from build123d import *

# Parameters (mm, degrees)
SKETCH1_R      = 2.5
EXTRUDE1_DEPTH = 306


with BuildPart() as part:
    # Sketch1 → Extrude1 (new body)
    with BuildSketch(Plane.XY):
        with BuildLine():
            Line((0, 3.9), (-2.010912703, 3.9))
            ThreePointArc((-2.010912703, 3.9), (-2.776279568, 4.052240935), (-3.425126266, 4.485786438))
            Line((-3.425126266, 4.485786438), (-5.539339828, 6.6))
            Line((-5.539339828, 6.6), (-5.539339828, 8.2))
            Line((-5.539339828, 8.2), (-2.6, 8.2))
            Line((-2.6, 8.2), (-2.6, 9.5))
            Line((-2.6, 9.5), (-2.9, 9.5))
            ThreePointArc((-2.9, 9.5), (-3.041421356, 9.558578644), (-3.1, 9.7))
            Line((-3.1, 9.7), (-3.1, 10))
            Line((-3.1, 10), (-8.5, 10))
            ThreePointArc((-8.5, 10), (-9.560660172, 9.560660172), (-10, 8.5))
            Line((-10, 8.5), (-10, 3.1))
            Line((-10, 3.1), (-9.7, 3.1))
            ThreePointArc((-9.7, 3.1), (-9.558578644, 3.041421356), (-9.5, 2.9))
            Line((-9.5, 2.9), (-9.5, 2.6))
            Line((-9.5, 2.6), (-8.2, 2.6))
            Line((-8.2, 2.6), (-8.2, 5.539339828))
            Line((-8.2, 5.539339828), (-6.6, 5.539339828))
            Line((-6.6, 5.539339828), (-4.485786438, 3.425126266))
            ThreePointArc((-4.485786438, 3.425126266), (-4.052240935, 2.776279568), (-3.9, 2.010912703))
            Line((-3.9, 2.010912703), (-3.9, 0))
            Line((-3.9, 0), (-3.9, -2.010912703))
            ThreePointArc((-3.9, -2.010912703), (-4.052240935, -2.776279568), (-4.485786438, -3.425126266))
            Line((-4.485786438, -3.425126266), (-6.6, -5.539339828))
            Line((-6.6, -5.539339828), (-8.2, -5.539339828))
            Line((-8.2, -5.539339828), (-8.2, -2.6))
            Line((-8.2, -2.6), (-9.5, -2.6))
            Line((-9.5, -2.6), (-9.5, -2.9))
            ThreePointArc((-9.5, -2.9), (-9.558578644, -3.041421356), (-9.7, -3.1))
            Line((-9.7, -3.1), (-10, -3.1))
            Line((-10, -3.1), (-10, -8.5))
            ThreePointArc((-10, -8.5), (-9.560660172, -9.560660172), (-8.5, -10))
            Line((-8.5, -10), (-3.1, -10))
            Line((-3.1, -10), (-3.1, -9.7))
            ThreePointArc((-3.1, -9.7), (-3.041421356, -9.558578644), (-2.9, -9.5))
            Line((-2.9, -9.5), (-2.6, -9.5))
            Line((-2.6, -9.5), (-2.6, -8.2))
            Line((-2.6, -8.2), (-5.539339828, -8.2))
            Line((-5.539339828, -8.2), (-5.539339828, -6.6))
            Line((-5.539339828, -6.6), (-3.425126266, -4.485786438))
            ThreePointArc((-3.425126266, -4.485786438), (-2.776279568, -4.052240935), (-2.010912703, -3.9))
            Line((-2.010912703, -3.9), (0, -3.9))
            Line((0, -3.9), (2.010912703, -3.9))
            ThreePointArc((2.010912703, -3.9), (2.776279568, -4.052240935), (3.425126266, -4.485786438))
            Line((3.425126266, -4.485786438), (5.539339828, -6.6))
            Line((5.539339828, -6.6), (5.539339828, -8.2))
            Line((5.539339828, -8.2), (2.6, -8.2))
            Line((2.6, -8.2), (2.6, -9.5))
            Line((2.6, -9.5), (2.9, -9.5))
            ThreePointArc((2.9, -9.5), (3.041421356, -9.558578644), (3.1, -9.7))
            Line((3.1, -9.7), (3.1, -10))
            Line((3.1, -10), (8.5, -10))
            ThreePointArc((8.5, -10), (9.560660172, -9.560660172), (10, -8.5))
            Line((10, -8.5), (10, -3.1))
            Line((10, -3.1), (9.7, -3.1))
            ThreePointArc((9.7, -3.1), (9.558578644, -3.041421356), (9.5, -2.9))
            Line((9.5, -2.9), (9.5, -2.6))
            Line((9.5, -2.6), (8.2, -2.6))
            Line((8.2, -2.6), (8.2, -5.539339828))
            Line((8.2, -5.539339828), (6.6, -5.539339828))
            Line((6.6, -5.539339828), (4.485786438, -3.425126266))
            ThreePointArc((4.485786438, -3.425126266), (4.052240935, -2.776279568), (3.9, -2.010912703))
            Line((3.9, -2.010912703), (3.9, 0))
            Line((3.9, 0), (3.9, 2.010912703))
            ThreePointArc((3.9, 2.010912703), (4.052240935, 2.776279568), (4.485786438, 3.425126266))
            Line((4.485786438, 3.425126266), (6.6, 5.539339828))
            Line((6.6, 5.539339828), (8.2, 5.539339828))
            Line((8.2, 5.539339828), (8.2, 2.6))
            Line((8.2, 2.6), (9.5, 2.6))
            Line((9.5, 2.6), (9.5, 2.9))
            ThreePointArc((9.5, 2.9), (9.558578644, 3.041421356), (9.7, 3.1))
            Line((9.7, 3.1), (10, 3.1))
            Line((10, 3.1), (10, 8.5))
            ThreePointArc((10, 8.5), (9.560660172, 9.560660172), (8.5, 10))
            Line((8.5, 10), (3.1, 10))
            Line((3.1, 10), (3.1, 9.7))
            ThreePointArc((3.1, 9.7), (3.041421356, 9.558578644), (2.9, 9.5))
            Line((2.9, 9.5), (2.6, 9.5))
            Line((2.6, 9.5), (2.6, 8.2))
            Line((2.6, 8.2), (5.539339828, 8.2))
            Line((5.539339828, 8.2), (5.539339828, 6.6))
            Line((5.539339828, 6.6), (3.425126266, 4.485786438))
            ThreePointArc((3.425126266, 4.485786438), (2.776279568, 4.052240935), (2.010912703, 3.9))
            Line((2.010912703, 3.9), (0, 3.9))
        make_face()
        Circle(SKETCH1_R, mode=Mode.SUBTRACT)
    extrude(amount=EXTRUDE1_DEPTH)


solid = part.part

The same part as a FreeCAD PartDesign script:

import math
import FreeCAD as App
import Part
import Sketcher

V = App.Vector

doc = App.newDocument("Part")
body = doc.addObject("PartDesign::Body", "Body")

# Sketch on XY plane
sketch1 = doc.addObject("Sketcher::SketchObject", "Sketch")
body.addObject(sketch1)
sketch1.AttachmentSupport = (doc.XY_Plane, [""])
sketch1.MapMode = "FlatFace"
sketch1.addGeometry([
    Part.ArcOfCircle(Part.Circle(V(-2.010913, 5.9, 0), V(0, 0, 1), 2), math.radians(-135), math.radians(-90)),  # 0
    Part.LineSegment(V(-3.425126, 4.485786, 0), V(-5.53934, 6.6, 0)),  # 1
    Part.LineSegment(V(-5.53934, 6.6, 0), V(-5.53934, 8.2, 0)),  # 2
    Part.LineSegment(V(-5.53934, 8.2, 0), V(-2.6, 8.2, 0)),  # 3
    Part.LineSegment(V(-2.6, 8.2, 0), V(-2.6, 9.5, 0)),  # 4
    Part.LineSegment(V(-2.6, 9.5, 0), V(-2.9, 9.5, 0)),  # 5
    Part.ArcOfCircle(Part.Circle(V(-2.9, 9.7, 0), V(0, 0, 1), 0.2), math.radians(-180), math.radians(-90)),  # 6
    Part.LineSegment(V(-3.1, 9.7, 0), V(-3.1, 10, 0)),  # 7
    Part.LineSegment(V(-3.1, 10, 0), V(-8.5, 10, 0)),  # 8
    Part.ArcOfCircle(Part.Circle(V(-8.5, 8.5, 0), V(0, 0, 1), 1.5), math.radians(90), math.radians(180)),  # 9
    Part.LineSegment(V(-10, 8.5, 0), V(-10, 3.1, 0)),  # 10
    Part.LineSegment(V(-10, 3.1, 0), V(-9.7, 3.1, 0)),  # 11
    Part.ArcOfCircle(Part.Circle(V(-9.7, 2.9, 0), V(0, 0, 1), 0.2), math.radians(0), math.radians(90)),  # 12
    Part.LineSegment(V(-9.5, 2.9, 0), V(-9.5, 2.6, 0)),  # 13
    Part.LineSegment(V(-9.5, 2.6, 0), V(-8.2, 2.6, 0)),  # 14
    Part.LineSegment(V(-8.2, 2.6, 0), V(-8.2, 5.53934, 0)),  # 15
    Part.LineSegment(V(-8.2, 5.53934, 0), V(-6.6, 5.53934, 0)),  # 16
    Part.LineSegment(V(-6.6, 5.53934, 0), V(-4.485786, 3.425126, 0)),  # 17
    Part.ArcOfCircle(Part.Circle(V(-5.9, 2.010913, 0), V(0, 0, 1), 2), math.radians(0), math.radians(45)),  # 18
    Part.LineSegment(V(-3.9, 2.010913, 0), V(-3.9, -2.010913, 0)),  # 19
    Part.ArcOfCircle(Part.Circle(V(-5.9, -2.010913, 0), V(0, 0, 1), 2), math.radians(-45), math.radians(0)),  # 20
    Part.LineSegment(V(-4.485786, -3.425126, 0), V(-6.6, -5.53934, 0)),  # 21
    Part.LineSegment(V(-6.6, -5.53934, 0), V(-8.2, -5.53934, 0)),  # 22
    Part.LineSegment(V(-8.2, -5.53934, 0), V(-8.2, -2.6, 0)),  # 23
    Part.LineSegment(V(-8.2, -2.6, 0), V(-9.5, -2.6, 0)),  # 24
    Part.LineSegment(V(-9.5, -2.6, 0), V(-9.5, -2.9, 0)),  # 25
    Part.ArcOfCircle(Part.Circle(V(-9.7, -2.9, 0), V(0, 0, 1), 0.2), math.radians(-90), math.radians(0)),  # 26
    Part.LineSegment(V(-9.7, -3.1, 0), V(-10, -3.1, 0)),  # 27
    Part.LineSegment(V(-10, -3.1, 0), V(-10, -8.5, 0)),  # 28
    Part.ArcOfCircle(Part.Circle(V(-8.5, -8.5, 0), V(0, 0, 1), 1.5), math.radians(180), math.radians(270)),  # 29
    Part.LineSegment(V(-8.5, -10, 0), V(-3.1, -10, 0)),  # 30
    Part.LineSegment(V(-3.1, -10, 0), V(-3.1, -9.7, 0)),  # 31
    Part.ArcOfCircle(Part.Circle(V(-2.9, -9.7, 0), V(0, 0, 1), 0.2), math.radians(90), math.radians(180)),  # 32
    Part.LineSegment(V(-2.9, -9.5, 0), V(-2.6, -9.5, 0)),  # 33
    Part.LineSegment(V(-2.6, -9.5, 0), V(-2.6, -8.2, 0)),  # 34
    Part.LineSegment(V(-2.6, -8.2, 0), V(-5.53934, -8.2, 0)),  # 35
    Part.LineSegment(V(-5.53934, -8.2, 0), V(-5.53934, -6.6, 0)),  # 36
    Part.LineSegment(V(-5.53934, -6.6, 0), V(-3.425126, -4.485786, 0)),  # 37
    Part.ArcOfCircle(Part.Circle(V(-2.010913, -5.9, 0), V(0, 0, 1), 2), math.radians(90), math.radians(135)),  # 38
    Part.LineSegment(V(-2.010913, -3.9, 0), V(2.010913, -3.9, 0)),  # 39
    Part.ArcOfCircle(Part.Circle(V(2.010913, -5.9, 0), V(0, 0, 1), 2), math.radians(45), math.radians(90)),  # 40
    Part.LineSegment(V(3.425126, -4.485786, 0), V(5.53934, -6.6, 0)),  # 41
    Part.LineSegment(V(5.53934, -6.6, 0), V(5.53934, -8.2, 0)),  # 42
    Part.LineSegment(V(5.53934, -8.2, 0), V(2.6, -8.2, 0)),  # 43
    Part.LineSegment(V(2.6, -8.2, 0), V(2.6, -9.5, 0)),  # 44
    Part.LineSegment(V(2.6, -9.5, 0), V(2.9, -9.5, 0)),  # 45
    Part.ArcOfCircle(Part.Circle(V(2.9, -9.7, 0), V(0, 0, 1), 0.2), math.radians(0), math.radians(90)),  # 46
    Part.LineSegment(V(3.1, -9.7, 0), V(3.1, -10, 0)),  # 47
    Part.LineSegment(V(3.1, -10, 0), V(8.5, -10, 0)),  # 48
    Part.ArcOfCircle(Part.Circle(V(8.5, -8.5, 0), V(0, 0, 1), 1.5), math.radians(-90), math.radians(0)),  # 49
    Part.LineSegment(V(10, -8.5, 0), V(10, -3.1, 0)),  # 50
    Part.LineSegment(V(10, -3.1, 0), V(9.7, -3.1, 0)),  # 51
    Part.ArcOfCircle(Part.Circle(V(9.7, -2.9, 0), V(0, 0, 1), 0.2), math.radians(-180), math.radians(-90)),  # 52
    Part.LineSegment(V(9.5, -2.9, 0), V(9.5, -2.6, 0)),  # 53
    Part.LineSegment(V(9.5, -2.6, 0), V(8.2, -2.6, 0)),  # 54
    Part.LineSegment(V(8.2, -2.6, 0), V(8.2, -5.53934, 0)),  # 55
    Part.LineSegment(V(8.2, -5.53934, 0), V(6.6, -5.53934, 0)),  # 56
    Part.LineSegment(V(6.6, -5.53934, 0), V(4.485786, -3.425126, 0)),  # 57
    Part.ArcOfCircle(Part.Circle(V(5.9, -2.010913, 0), V(0, 0, 1), 2), math.radians(180), math.radians(225)),  # 58
    Part.LineSegment(V(3.9, -2.010913, 0), V(3.9, 2.010913, 0)),  # 59
    Part.ArcOfCircle(Part.Circle(V(5.9, 2.010913, 0), V(0, 0, 1), 2), math.radians(135), math.radians(180)),  # 60
    Part.LineSegment(V(4.485786, 3.425126, 0), V(6.6, 5.53934, 0)),  # 61
    Part.LineSegment(V(6.6, 5.53934, 0), V(8.2, 5.53934, 0)),  # 62
    Part.LineSegment(V(8.2, 5.53934, 0), V(8.2, 2.6, 0)),  # 63
    Part.LineSegment(V(8.2, 2.6, 0), V(9.5, 2.6, 0)),  # 64
    Part.LineSegment(V(9.5, 2.6, 0), V(9.5, 2.9, 0)),  # 65
    Part.ArcOfCircle(Part.Circle(V(9.7, 2.9, 0), V(0, 0, 1), 0.2), math.radians(90), math.radians(180)),  # 66
    Part.LineSegment(V(9.7, 3.1, 0), V(10, 3.1, 0)),  # 67
    Part.LineSegment(V(10, 3.1, 0), V(10, 8.5, 0)),  # 68
    Part.ArcOfCircle(Part.Circle(V(8.5, 8.5, 0), V(0, 0, 1), 1.5), math.radians(0), math.radians(90)),  # 69
    Part.LineSegment(V(8.5, 10, 0), V(3.1, 10, 0)),  # 70
    Part.LineSegment(V(3.1, 10, 0), V(3.1, 9.7, 0)),  # 71
    Part.ArcOfCircle(Part.Circle(V(2.9, 9.7, 0), V(0, 0, 1), 0.2), math.radians(-90), math.radians(0)),  # 72
    Part.LineSegment(V(2.9, 9.5, 0), V(2.6, 9.5, 0)),  # 73
    Part.LineSegment(V(2.6, 9.5, 0), V(2.6, 8.2, 0)),  # 74
    Part.LineSegment(V(2.6, 8.2, 0), V(5.53934, 8.2, 0)),  # 75
    Part.LineSegment(V(5.53934, 8.2, 0), V(5.53934, 6.6, 0)),  # 76
    Part.LineSegment(V(5.53934, 6.6, 0), V(3.425126, 4.485786, 0)),  # 77
    Part.ArcOfCircle(Part.Circle(V(2.010913, 5.9, 0), V(0, 0, 1), 2), math.radians(-90), math.radians(-45)),  # 78
    Part.LineSegment(V(2.010913, 3.9, 0), V(-2.010913, 3.9, 0)),  # 79
    Part.Circle(V(0, 0, 0), V(0, 0, 1), 2.5),  # 80
], False)
sketch1.addConstraint([
    Sketcher.Constraint("Tangent", 0, 1, 1, 1),
    Sketcher.Constraint("Coincident", 1, 2, 2, 1),
    Sketcher.Constraint("Coincident", 2, 2, 3, 1),
    Sketcher.Constraint("Coincident", 3, 2, 4, 1),
    Sketcher.Constraint("Coincident", 4, 2, 5, 1),
    Sketcher.Constraint("Tangent", 5, 2, 6, 2),
    Sketcher.Constraint("Tangent", 6, 1, 7, 1),
    Sketcher.Constraint("Coincident", 7, 2, 8, 1),
    Sketcher.Constraint("Tangent", 8, 2, 9, 1),
    Sketcher.Constraint("Tangent", 9, 2, 10, 1),
    Sketcher.Constraint("Coincident", 10, 2, 11, 1),
    Sketcher.Constraint("Tangent", 11, 2, 12, 2),
    Sketcher.Constraint("Tangent", 12, 1, 13, 1),
    Sketcher.Constraint("Coincident", 13, 2, 14, 1),
    Sketcher.Constraint("Coincident", 14, 2, 15, 1),
    Sketcher.Constraint("Coincident", 15, 2, 16, 1),
    Sketcher.Constraint("Coincident", 16, 2, 17, 1),
    Sketcher.Constraint("Tangent", 17, 2, 18, 2),
    Sketcher.Constraint("Tangent", 18, 1, 19, 1),
    Sketcher.Constraint("Tangent", 19, 2, 20, 2),
    Sketcher.Constraint("Tangent", 20, 1, 21, 1),
    Sketcher.Constraint("Coincident", 21, 2, 22, 1),
    Sketcher.Constraint("Coincident", 22, 2, 23, 1),
    Sketcher.Constraint("Coincident", 23, 2, 24, 1),
    Sketcher.Constraint("Coincident", 24, 2, 25, 1),
    Sketcher.Constraint("Tangent", 25, 2, 26, 2),
    Sketcher.Constraint("Tangent", 26, 1, 27, 1),
    Sketcher.Constraint("Coincident", 27, 2, 28, 1),
    Sketcher.Constraint("Tangent", 28, 2, 29, 1),
    Sketcher.Constraint("Tangent", 29, 2, 30, 1),
    Sketcher.Constraint("Coincident", 30, 2, 31, 1),
    Sketcher.Constraint("Tangent", 31, 2, 32, 2),
    Sketcher.Constraint("Tangent", 32, 1, 33, 1),
    Sketcher.Constraint("Coincident", 33, 2, 34, 1),
    Sketcher.Constraint("Coincident", 34, 2, 35, 1),
    Sketcher.Constraint("Coincident", 35, 2, 36, 1),
    Sketcher.Constraint("Coincident", 36, 2, 37, 1),
    Sketcher.Constraint("Tangent", 37, 2, 38, 2),
    Sketcher.Constraint("Tangent", 38, 1, 39, 1),
    Sketcher.Constraint("Tangent", 39, 2, 40, 2),
    Sketcher.Constraint("Tangent", 40, 1, 41, 1),
    Sketcher.Constraint("Coincident", 41, 2, 42, 1),
    Sketcher.Constraint("Coincident", 42, 2, 43, 1),
    Sketcher.Constraint("Coincident", 43, 2, 44, 1),
    Sketcher.Constraint("Coincident", 44, 2, 45, 1),
    Sketcher.Constraint("Tangent", 45, 2, 46, 2),
    Sketcher.Constraint("Tangent", 46, 1, 47, 1),
    Sketcher.Constraint("Coincident", 47, 2, 48, 1),
    Sketcher.Constraint("Tangent", 48, 2, 49, 1),
    Sketcher.Constraint("Tangent", 49, 2, 50, 1),
    Sketcher.Constraint("Coincident", 50, 2, 51, 1),
    Sketcher.Constraint("Tangent", 51, 2, 52, 2),
    Sketcher.Constraint("Tangent", 52, 1, 53, 1),
    Sketcher.Constraint("Coincident", 53, 2, 54, 1),
    Sketcher.Constraint("Coincident", 54, 2, 55, 1),
    Sketcher.Constraint("Coincident", 55, 2, 56, 1),
    Sketcher.Constraint("Coincident", 56, 2, 57, 1),
    Sketcher.Constraint("Tangent", 57, 2, 58, 2),
    Sketcher.Constraint("Tangent", 58, 1, 59, 1),
    Sketcher.Constraint("Tangent", 59, 2, 60, 2),
    Sketcher.Constraint("Tangent", 60, 1, 61, 1),
    Sketcher.Constraint("Coincident", 61, 2, 62, 1),
    Sketcher.Constraint("Coincident", 62, 2, 63, 1),
    Sketcher.Constraint("Coincident", 63, 2, 64, 1),
    Sketcher.Constraint("Coincident", 64, 2, 65, 1),
    Sketcher.Constraint("Tangent", 65, 2, 66, 2),
    Sketcher.Constraint("Tangent", 66, 1, 67, 1),
    Sketcher.Constraint("Coincident", 67, 2, 68, 1),
    Sketcher.Constraint("Tangent", 68, 2, 69, 1),
    Sketcher.Constraint("Tangent", 69, 2, 70, 1),
    Sketcher.Constraint("Coincident", 70, 2, 71, 1),
    Sketcher.Constraint("Tangent", 71, 2, 72, 2),
    Sketcher.Constraint("Tangent", 72, 1, 73, 1),
    Sketcher.Constraint("Coincident", 73, 2, 74, 1),
    Sketcher.Constraint("Coincident", 74, 2, 75, 1),
    Sketcher.Constraint("Coincident", 75, 2, 76, 1),
    Sketcher.Constraint("Coincident", 76, 2, 77, 1),
    Sketcher.Constraint("Tangent", 77, 2, 78, 2),
    Sketcher.Constraint("Tangent", 78, 1, 79, 1),
    Sketcher.Constraint("Tangent", 79, 2, 0, 2),
    Sketcher.Constraint("Vertical", 2),
    Sketcher.Constraint("Horizontal", 3),
    Sketcher.Constraint("Vertical", 4),
    Sketcher.Constraint("Horizontal", 5),
    Sketcher.Constraint("Vertical", 7),
    Sketcher.Constraint("Horizontal", 8),
    Sketcher.Constraint("Vertical", 10),
    Sketcher.Constraint("Horizontal", 11),
    Sketcher.Constraint("Vertical", 13),
    Sketcher.Constraint("Horizontal", 14),
    Sketcher.Constraint("Vertical", 15),
    Sketcher.Constraint("Horizontal", 16),
    Sketcher.Constraint("Vertical", 19),
    Sketcher.Constraint("Horizontal", 22),
    Sketcher.Constraint("Vertical", 23),
    Sketcher.Constraint("Horizontal", 24),
    Sketcher.Constraint("Vertical", 25),
    Sketcher.Constraint("Horizontal", 27),
    Sketcher.Constraint("Vertical", 28),
    Sketcher.Constraint("Horizontal", 30),
    Sketcher.Constraint("Vertical", 31),
    Sketcher.Constraint("Horizontal", 33),
    Sketcher.Constraint("Vertical", 34),
    Sketcher.Constraint("Horizontal", 35),
    Sketcher.Constraint("Vertical", 36),
    Sketcher.Constraint("Horizontal", 39),
    Sketcher.Constraint("Vertical", 42),
    Sketcher.Constraint("Horizontal", 43),
    Sketcher.Constraint("Vertical", 44),
    Sketcher.Constraint("Horizontal", 45),
    Sketcher.Constraint("Vertical", 47),
    Sketcher.Constraint("Horizontal", 48),
    Sketcher.Constraint("Vertical", 50),
    Sketcher.Constraint("Horizontal", 51),
    Sketcher.Constraint("Vertical", 53),
    Sketcher.Constraint("Horizontal", 54),
    Sketcher.Constraint("Vertical", 55),
    Sketcher.Constraint("Horizontal", 56),
    Sketcher.Constraint("Vertical", 59),
    Sketcher.Constraint("Horizontal", 62),
    Sketcher.Constraint("Vertical", 63),
    Sketcher.Constraint("Horizontal", 64),
    Sketcher.Constraint("Vertical", 65),
    Sketcher.Constraint("Horizontal", 67),
    Sketcher.Constraint("Vertical", 68),
    Sketcher.Constraint("Horizontal", 70),
    Sketcher.Constraint("Vertical", 71),
    Sketcher.Constraint("Horizontal", 73),
    Sketcher.Constraint("Vertical", 74),
    Sketcher.Constraint("Horizontal", 75),
    Sketcher.Constraint("Vertical", 76),
    Sketcher.Constraint("Horizontal", 79),
    Sketcher.Constraint("Coincident", 80, 3, -1, 1),
    Sketcher.Constraint("Equal", 6, 12),
    Sketcher.Constraint("Equal", 0, 18),
    Sketcher.Constraint("Equal", 18, 20),
    Sketcher.Constraint("Equal", 12, 26),
    Sketcher.Constraint("Equal", 9, 29),
    Sketcher.Constraint("Equal", 26, 32),
    Sketcher.Constraint("Equal", 20, 38),
    Sketcher.Constraint("Equal", 38, 40),
    Sketcher.Constraint("Equal", 32, 46),
    Sketcher.Constraint("Equal", 29, 49),
    Sketcher.Constraint("Equal", 46, 52),
    Sketcher.Constraint("Equal", 40, 58),
    Sketcher.Constraint("Equal", 58, 60),
    Sketcher.Constraint("Equal", 52, 66),
    Sketcher.Constraint("Equal", 49, 69),
    Sketcher.Constraint("Equal", 66, 72),
    Sketcher.Constraint("Equal", 60, 78),
    Sketcher.Constraint("Symmetric", 0, 3, 40, 3, -1, 1),
    Sketcher.Constraint("Symmetric", 6, 3, 46, 3, -1, 1),
    Sketcher.Constraint("Symmetric", 9, 3, 49, 3, -1, 1),
    Sketcher.Constraint("Symmetric", 12, 3, 52, 3, -1, 1),
    Sketcher.Constraint("Symmetric", 18, 3, 58, 3, -1, 1),
    Sketcher.Constraint("Symmetric", 26, 3, 66, 3, -1, 1),
    Sketcher.Constraint("Symmetric", 29, 3, 69, 3, -1, 1),
    Sketcher.Constraint("Symmetric", 32, 3, 72, 3, -1, 1),
    Sketcher.Constraint("Symmetric", 1, 2, 41, 2, -1, 1),
    Sketcher.Constraint("Symmetric", 3, 2, 43, 2, -1, 1),
    Sketcher.Constraint("Symmetric", 14, 2, 54, 2, -1, 1),
    Sketcher.Constraint("Symmetric", 16, 2, 56, 2, -1, 1),
    Sketcher.Constraint("Symmetric", 20, 1, 60, 1, -1, 1),
    Sketcher.Constraint("Symmetric", 22, 2, 62, 2, -1, 1),
    Sketcher.Constraint("Symmetric", 34, 2, 74, 2, -1, 1),
    Sketcher.Constraint("Symmetric", 36, 2, 76, 2, -1, 1),
    Sketcher.Constraint("Symmetric", 32, 3, 46, 3, -2),
    Sketcher.Constraint("Symmetric", 29, 3, 49, 3, -2),
    Sketcher.Constraint("Symmetric", 26, 3, 52, 3, -2),
    Sketcher.Constraint("Symmetric", 37, 2, 40, 1, -2),
    Sketcher.Constraint("Symmetric", 35, 2, 42, 2, -2),
    Sketcher.Constraint("Symmetric", 23, 2, 54, 2, -2),
    Sketcher.Constraint("Symmetric", 21, 2, 56, 2, -2),
    Sketcher.Constraint("Parallel", 1, 17),
    Sketcher.Constraint("Perpendicular", 17, 21),
    Sketcher.Constraint("Parallel", 21, 37),
    Sketcher.Constraint("Parallel", 61, 77),
    Sketcher.Constraint("Horizontal", 14, 2, 63, 2),
    Sketcher.Constraint("Vertical", 4, 2, 33, 2),
    Sketcher.Constraint("Equal", 5, 11),
    Sketcher.Constraint("Equal", 62, 2),
    Sketcher.Constraint("Equal", 64, 4),
    Sketcher.Constraint("Equal", 73, 7),
    Sketcher.Constraint("Equal", 70, 10),
    Sketcher.Constraint("Equal", 7, 13),
    Sketcher.Constraint("Equal", 75, 15),
    Sketcher.Constraint("Equal", 79, 19),
    Sketcher.Constraint("Equal", 1, 17),
    Sketcher.Constraint("Diameter", 80, 5.0),
    Sketcher.Constraint("Radius", 0, 2.0),
    Sketcher.Constraint("Radius", 6, 0.2),
    Sketcher.Constraint("Radius", 9, 1.5),
    Sketcher.Constraint("DistanceX", 5, 2, 5, 1, 0.3),
    Sketcher.Constraint("DistanceX", 8, 2, 8, 1, 5.4),
    Sketcher.Constraint("DistanceX", 14, 1, 14, 2, 1.3),
    Sketcher.Constraint("DistanceX", 16, 1, 16, 2, 1.6),
    Sketcher.Constraint("DistanceY", -1, 1, 7, 2, 10.0),
    Sketcher.Constraint("DistanceY", -1, 1, 0, 3, 5.9),
    Sketcher.Constraint("DistanceX", 3, 1, 3, 2, 2.93934),
])
pad1 = doc.addObject("PartDesign::Pad", "Pad")
body.addObject(pad1)
pad1.Profile = sketch1
pad1.Length = 306

doc.recompute()
